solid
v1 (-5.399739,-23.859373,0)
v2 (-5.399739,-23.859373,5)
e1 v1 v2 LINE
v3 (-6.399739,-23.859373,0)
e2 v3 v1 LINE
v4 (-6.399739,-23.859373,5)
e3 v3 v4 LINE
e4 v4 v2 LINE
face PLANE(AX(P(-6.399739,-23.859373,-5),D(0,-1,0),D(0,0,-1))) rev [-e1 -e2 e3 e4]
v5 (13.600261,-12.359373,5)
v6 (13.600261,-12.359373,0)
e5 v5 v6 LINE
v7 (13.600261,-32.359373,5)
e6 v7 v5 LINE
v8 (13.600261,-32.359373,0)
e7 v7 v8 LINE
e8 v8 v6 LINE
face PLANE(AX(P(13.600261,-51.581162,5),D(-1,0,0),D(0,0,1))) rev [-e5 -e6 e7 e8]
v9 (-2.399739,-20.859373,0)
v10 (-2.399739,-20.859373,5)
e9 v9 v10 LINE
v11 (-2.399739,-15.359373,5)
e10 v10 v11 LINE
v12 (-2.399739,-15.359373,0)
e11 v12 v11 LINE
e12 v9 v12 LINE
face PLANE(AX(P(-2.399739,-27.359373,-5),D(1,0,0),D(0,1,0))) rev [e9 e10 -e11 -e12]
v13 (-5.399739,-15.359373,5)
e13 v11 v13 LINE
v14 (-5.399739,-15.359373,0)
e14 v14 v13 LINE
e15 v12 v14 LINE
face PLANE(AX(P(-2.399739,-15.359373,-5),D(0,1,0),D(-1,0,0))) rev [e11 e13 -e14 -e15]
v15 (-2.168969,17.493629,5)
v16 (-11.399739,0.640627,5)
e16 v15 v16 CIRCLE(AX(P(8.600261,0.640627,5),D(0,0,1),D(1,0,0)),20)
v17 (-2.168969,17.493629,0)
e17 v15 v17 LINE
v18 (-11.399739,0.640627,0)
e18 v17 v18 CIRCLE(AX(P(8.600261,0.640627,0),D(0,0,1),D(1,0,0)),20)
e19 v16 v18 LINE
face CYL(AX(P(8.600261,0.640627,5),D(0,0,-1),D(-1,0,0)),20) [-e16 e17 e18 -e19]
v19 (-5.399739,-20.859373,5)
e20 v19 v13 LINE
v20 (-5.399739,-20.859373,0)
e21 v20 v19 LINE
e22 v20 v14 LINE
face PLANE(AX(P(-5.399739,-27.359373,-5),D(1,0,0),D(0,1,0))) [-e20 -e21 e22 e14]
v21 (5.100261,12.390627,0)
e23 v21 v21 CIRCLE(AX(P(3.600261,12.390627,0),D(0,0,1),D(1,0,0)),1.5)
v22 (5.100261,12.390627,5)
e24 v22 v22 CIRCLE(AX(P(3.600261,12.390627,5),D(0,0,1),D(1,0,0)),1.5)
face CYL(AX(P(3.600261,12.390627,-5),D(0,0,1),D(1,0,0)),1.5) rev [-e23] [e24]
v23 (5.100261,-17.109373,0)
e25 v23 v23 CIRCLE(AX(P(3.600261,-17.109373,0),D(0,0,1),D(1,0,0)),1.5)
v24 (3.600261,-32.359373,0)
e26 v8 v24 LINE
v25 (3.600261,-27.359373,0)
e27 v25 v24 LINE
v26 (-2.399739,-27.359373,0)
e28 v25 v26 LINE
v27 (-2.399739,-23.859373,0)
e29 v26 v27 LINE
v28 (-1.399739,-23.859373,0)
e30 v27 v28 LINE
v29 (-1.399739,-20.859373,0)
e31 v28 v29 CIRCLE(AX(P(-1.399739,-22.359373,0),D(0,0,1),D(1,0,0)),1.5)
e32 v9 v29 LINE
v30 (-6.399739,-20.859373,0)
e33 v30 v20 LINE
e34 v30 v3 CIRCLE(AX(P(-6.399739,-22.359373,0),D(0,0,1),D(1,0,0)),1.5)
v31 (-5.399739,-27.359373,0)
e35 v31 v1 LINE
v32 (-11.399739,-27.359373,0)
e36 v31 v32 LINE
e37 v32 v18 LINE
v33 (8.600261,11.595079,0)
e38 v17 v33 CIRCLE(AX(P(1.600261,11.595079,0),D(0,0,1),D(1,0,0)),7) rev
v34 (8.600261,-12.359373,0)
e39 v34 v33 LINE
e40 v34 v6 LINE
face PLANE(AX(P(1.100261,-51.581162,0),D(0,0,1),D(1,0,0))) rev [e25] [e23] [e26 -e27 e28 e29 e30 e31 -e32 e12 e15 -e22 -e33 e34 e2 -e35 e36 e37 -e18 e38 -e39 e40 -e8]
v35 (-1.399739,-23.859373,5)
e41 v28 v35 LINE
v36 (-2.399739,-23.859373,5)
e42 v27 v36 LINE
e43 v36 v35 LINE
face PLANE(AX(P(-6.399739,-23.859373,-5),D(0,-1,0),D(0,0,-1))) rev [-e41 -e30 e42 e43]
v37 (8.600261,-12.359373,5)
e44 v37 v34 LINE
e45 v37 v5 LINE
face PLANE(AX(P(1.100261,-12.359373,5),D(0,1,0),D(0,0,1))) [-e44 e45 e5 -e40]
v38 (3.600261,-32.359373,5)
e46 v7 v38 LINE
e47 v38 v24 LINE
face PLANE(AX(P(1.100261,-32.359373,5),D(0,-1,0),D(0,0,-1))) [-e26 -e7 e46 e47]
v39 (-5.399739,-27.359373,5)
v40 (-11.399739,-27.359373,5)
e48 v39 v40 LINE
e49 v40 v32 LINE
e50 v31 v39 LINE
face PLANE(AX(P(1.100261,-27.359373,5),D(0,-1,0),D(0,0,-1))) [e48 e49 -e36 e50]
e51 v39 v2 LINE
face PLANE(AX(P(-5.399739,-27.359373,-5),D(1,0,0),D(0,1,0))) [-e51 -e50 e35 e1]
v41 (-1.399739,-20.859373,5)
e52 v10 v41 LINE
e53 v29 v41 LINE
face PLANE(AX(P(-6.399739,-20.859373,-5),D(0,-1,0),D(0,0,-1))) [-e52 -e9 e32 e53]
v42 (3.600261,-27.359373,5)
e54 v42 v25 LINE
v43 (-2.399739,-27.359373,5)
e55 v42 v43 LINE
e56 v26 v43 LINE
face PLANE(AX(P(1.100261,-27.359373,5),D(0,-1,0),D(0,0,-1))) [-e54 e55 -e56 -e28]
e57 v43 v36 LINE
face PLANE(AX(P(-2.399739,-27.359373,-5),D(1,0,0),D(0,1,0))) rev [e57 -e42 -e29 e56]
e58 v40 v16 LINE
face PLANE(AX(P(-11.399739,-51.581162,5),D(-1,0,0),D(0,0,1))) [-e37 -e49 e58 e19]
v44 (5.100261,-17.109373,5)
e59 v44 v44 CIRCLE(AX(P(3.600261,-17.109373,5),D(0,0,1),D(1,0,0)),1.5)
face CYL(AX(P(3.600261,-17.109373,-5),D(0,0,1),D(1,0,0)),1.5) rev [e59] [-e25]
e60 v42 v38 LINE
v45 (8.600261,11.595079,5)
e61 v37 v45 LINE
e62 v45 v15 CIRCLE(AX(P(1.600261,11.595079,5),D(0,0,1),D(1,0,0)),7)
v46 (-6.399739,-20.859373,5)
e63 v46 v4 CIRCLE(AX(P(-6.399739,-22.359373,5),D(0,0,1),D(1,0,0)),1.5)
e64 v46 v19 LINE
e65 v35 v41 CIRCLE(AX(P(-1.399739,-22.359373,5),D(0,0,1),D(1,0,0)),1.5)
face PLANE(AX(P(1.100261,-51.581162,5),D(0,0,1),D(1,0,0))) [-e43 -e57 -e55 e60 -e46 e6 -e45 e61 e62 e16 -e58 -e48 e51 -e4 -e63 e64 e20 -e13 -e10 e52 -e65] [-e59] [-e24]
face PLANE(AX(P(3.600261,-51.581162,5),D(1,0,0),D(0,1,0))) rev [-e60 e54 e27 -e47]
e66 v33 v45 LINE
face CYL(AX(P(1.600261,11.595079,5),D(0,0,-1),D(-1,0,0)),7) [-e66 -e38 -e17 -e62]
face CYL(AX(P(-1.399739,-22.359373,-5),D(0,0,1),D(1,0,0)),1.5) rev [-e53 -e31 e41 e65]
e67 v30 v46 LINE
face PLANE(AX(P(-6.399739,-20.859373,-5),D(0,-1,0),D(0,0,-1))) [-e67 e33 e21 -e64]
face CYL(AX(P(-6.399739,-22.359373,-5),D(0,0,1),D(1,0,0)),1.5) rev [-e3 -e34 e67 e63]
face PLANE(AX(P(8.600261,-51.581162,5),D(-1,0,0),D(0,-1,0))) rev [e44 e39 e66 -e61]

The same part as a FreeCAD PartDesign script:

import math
import FreeCAD as App
import Part
import Sketcher
Q = App.Units.Quantity


def edges_at(feature, points):
    """Names of the edges that pass closest to the given points."""
    edges = feature.Shape.Edges
    near = lambda p: min(range(len(edges)), key=lambda i: edges[i].distToShape(Part.Vertex(*p))[0])
    return sorted({f"Edge{near(p) + 1}" for p in points})

doc = App.newDocument("Part")
body = doc.addObject("PartDesign::Body", "Body")

# Sketch on XY plane
sketch1 = doc.addObject("Sketcher::SketchObject", "Sketch")
body.addObject(sketch1)
sketch1.AttachmentSupport = (doc.XY_Plane, [""])
sketch1.MapMode = "FlatFace"
sketch1.addGeometry([
    Part.LineSegment(App.Vector(13.6, -32.4, 0), App.Vector(13.6, -12.4, 0)),  # 0
    Part.LineSegment(App.Vector(13.6, -12.4, 0), App.Vector(8.6, -12.4, 0)),  # 1
    Part.LineSegment(App.Vector(8.6, -12.4, 0), App.Vector(8.6, 20.6, 0)),  # 2
    Part.ArcOfCircle(Part.Circle(App.Vector(8.6, 0.6, 0), App.Vector(0, 0, 1), 20), math.radians(90), math.radians(180)),  # 3
    Part.LineSegment(App.Vector(-11.4, 0.6, 0), App.Vector(-11.4, -27.4, 0)),  # 4
    Part.LineSegment(App.Vector(-11.4, -27.4, 0), App.Vector(3.6, -27.4, 0)),  # 5
    Part.LineSegment(App.Vector(3.6, -27.4, 0), App.Vector(3.6, -32.4, 0)),  # 6
    Part.LineSegment(App.Vector(3.6, -32.4, 0), App.Vector(13.6, -32.4, 0)),  # 7
], False)
sketch1.addConstraint([
    Sketcher.Constraint("Coincident", 0, 2, 1, 1),
    Sketcher.Constraint("Coincident", 1, 2, 2, 1),
    Sketcher.Constraint("Coincident", 2, 2, 3, 1),
    Sketcher.Constraint("Tangent", 3, 2, 4, 1),
    Sketcher.Constraint("Coincident", 4, 2, 5, 1),
    Sketcher.Constraint("Coincident", 5, 2, 6, 1),
    Sketcher.Constraint("Coincident", 6, 2, 7, 1),
    Sketcher.Constraint("Coincident", 7, 2, 0, 1),
    Sketcher.Constraint("Vertical", 0),
    Sketcher.Constraint("Horizontal", 1),
    Sketcher.Constraint("Vertical", 2),
    Sketcher.Constraint("Vertical", 4),
    Sketcher.Constraint("Horizontal", 5),
    Sketcher.Constraint("Vertical", 6),
    Sketcher.Constraint("Horizontal", 7),
    Sketcher.Constraint("Vertical", 3, 3, 1, 2),
    Sketcher.Constraint("Equal", 1, 6),
    Sketcher.Constraint("Radius", 3, Q("20 mm")),
    Sketcher.Constraint("DistanceX", 1, 2, 1, 1, Q("5 mm")),
    Sketcher.Constraint("DistanceX", 5, 1, 5, 2, Q("15 mm")),
    Sketcher.Constraint("DistanceY", 0, 1, 0, 2, Q("20 mm")),
    Sketcher.Constraint("DistanceY", 2, 1, 2, 2, Q("33 mm")),
    Sketcher.Constraint("DistanceX", -1, 1, 3, 3, Q("8.600261 mm")),
    Sketcher.Constraint("DistanceY", -1, 1, 3, 3, Q("0.640627 mm")),
])
pad1 = doc.addObject("PartDesign::Pad", "Pad")
body.addObject(pad1)
pad1.Profile = sketch1
pad1.Length = 5

# Sketch on XY plane
sketch2 = doc.addObject("Sketcher::SketchObject", "Sketch001")
body.addObject(sketch2)
sketch2.AttachmentSupport = (doc.XY_Plane, [""])
sketch2.MapMode = "FlatFace"
sketch2.AttachmentOffset = App.Placement(App.Vector(0, 0, 5), App.Rotation())
sketch2.addGeometry([
    Part.LineSegment(App.Vector(-5.4, -23.9, 0), App.Vector(-5.4, -27.4, 0)),  # 0
    Part.LineSegment(App.Vector(-5.4, -27.4, 0), App.Vector(-2.4, -27.4, 0)),  # 1
    Part.LineSegment(App.Vector(-2.4, -27.4, 0), App.Vector(-2.4, -23.9, 0)),  # 2
    Part.LineSegment(App.Vector(-2.4, -23.9, 0), App.Vector(-1.4, -23.9, 0)),  # 3
    Part.ArcOfCircle(Part.Circle(App.Vector(-1.4, -22.4, 0), App.Vector(0, 0, 1), 1.5), math.radians(-90), math.radians(90)),  # 4
    Part.LineSegment(App.Vector(-1.4, -20.9, 0), App.Vector(-2.4, -20.9, 0)),  # 5
    Part.LineSegment(App.Vector(-2.4, -20.9, 0), App.Vector(-2.4, -15.4, 0)),  # 6
    Part.LineSegment(App.Vector(-2.4, -15.4, 0), App.Vector(-5.4, -15.4, 0)),  # 7
    Part.LineSegment(App.Vector(-5.4, -15.4, 0), App.Vector(-5.4, -20.9, 0)),  # 8
    Part.LineSegment(App.Vector(-5.4, -20.9, 0), App.Vector(-6.4, -20.9, 0)),  # 9
    Part.ArcOfCircle(Part.Circle(App.Vector(-6.4, -22.4, 0), App.Vector(0, 0, 1), 1.5), math.radians(90), math.radians(270)),  # 10
    Part.LineSegment(App.Vector(-6.4, -23.9, 0), App.Vector(-5.4, -23.9, 0)),  # 11
], False)
sketch2.addConstraint([
    Sketcher.Constraint("Coincident", 0, 2, 1, 1),
    Sketcher.Constraint("Coincident", 1, 2, 2, 1),
    Sketcher.Constraint("Coincident", 2, 2, 3, 1),
    Sketcher.Constraint("Tangent", 3, 2, 4, 1),
    Sketcher.Constraint("Tangent", 4, 2, 5, 1),
    Sketcher.Constraint("Coincident", 5, 2, 6, 1),
    Sketcher.Constraint("Coincident", 6, 2, 7, 1),
    Sketcher.Constraint("Coincident", 7, 2, 8, 1),
    Sketcher.Constraint("Coincident", 8, 2, 9, 1),
    Sketcher.Constraint("Tangent", 9, 2, 10, 1),
    Sketcher.Constraint("Tangent", 10, 2, 11, 1),
    Sketcher.Constraint("Coincident", 11, 2, 0, 1),
    Sketcher.Constraint("Vertical", 0),
    Sketcher.Constraint("Horizontal", 1),
    Sketcher.Constraint("Vertical", 2),
    Sketcher.Constraint("Horizontal", 3),
    Sketcher.Constraint("Horizontal", 5),
    Sketcher.Constraint("Vertical", 6),
    Sketcher.Constraint("Horizontal", 7),
    Sketcher.Constraint("Vertical", 8),
    Sketcher.Constraint("Horizontal", 9),
    Sketcher.Constraint("Horizontal", 11),
    Sketcher.Constraint("Equal", 4, 10),
    Sketcher.Constraint("Horizontal", 4, 3, 10, 3),
    Sketcher.Constraint("Vertical", 2, 2, 5, 2),
    Sketcher.Constraint("Vertical", 0, 2, 7, 2),
    Sketcher.Constraint("Equal", 5, 9),
    Sketcher.Constraint("Radius", 4, Q("1.5 mm")),
    Sketcher.Constraint("DistanceX", 1, 1, 1, 2, Q("3 mm")),
    Sketcher.Constraint("DistanceX", 3, 1, 3, 2, Q("1 mm")),
    Sketcher.Constraint("DistanceY", 0, 2, 0, 1, Q("3.5 mm")),
    Sketcher.Constraint("DistanceY", 6, 1, 6, 2, Q("5.5 mm")),
    Sketcher.Constraint("DistanceX", 4, 3, -1, 1, Q("1.399739 mm")),
    Sketcher.Constraint("DistanceY", 4, 3, -1, 1, Q("22.359373 mm")),
])
pocket1 = doc.addObject("PartDesign::Pocket", "Pocket")
body.addObject(pocket1)
pocket1.Profile = sketch2
pocket1.Length = 10
doc.recompute()

fillet = doc.addObject("PartDesign::Fillet", "Fillet")
body.addObject(fillet)
fillet.Base = (pocket1, edges_at(pocket1, [(8.6, 20.641, 2.5)]))
fillet.Radius = 7

# Sketch on XY plane
sketch3 = doc.addObject("Sketcher::SketchObject", "Sketch002")
body.addObject(sketch3)
sketch3.AttachmentSupport = (doc.XY_Plane, [""])
sketch3.MapMode = "FlatFace"
sketch3.AttachmentOffset = App.Placement(App.Vector(0, 0, 5), App.Rotation())
sketch3.addGeometry([
    Part.Circle(App.Vector(3.6, -17.1, 0), App.Vector(0, 0, 1), 1.5),
    Part.Circle(App.Vector(3.6, 12.4, 0), App.Vector(0, 0, 1), 1.5),
], False)
sketch3.addConstraint([
    Sketcher.Constraint("Equal", 0, 1),
    Sketcher.Constraint("Vertical", 0, 3, 1, 3),
    Sketcher.Constraint("Diameter", 0, Q("3 mm")),
    Sketcher.Constraint("DistanceY", 0, 3, 1, 3, Q("29.5 mm")),
    Sketcher.Constraint("DistanceX", -1, 1, 0, 3, Q("3.600261 mm")),
    Sketcher.Constraint("DistanceY", 0, 3, -1, 1, Q("17.109373 mm")),
])
pocket2 = doc.addObject("PartDesign::Pocket", "Pocket001")
body.addObject(pocket2)
pocket2.Profile = sketch3
pocket2.Length = 10

doc.recompute()
